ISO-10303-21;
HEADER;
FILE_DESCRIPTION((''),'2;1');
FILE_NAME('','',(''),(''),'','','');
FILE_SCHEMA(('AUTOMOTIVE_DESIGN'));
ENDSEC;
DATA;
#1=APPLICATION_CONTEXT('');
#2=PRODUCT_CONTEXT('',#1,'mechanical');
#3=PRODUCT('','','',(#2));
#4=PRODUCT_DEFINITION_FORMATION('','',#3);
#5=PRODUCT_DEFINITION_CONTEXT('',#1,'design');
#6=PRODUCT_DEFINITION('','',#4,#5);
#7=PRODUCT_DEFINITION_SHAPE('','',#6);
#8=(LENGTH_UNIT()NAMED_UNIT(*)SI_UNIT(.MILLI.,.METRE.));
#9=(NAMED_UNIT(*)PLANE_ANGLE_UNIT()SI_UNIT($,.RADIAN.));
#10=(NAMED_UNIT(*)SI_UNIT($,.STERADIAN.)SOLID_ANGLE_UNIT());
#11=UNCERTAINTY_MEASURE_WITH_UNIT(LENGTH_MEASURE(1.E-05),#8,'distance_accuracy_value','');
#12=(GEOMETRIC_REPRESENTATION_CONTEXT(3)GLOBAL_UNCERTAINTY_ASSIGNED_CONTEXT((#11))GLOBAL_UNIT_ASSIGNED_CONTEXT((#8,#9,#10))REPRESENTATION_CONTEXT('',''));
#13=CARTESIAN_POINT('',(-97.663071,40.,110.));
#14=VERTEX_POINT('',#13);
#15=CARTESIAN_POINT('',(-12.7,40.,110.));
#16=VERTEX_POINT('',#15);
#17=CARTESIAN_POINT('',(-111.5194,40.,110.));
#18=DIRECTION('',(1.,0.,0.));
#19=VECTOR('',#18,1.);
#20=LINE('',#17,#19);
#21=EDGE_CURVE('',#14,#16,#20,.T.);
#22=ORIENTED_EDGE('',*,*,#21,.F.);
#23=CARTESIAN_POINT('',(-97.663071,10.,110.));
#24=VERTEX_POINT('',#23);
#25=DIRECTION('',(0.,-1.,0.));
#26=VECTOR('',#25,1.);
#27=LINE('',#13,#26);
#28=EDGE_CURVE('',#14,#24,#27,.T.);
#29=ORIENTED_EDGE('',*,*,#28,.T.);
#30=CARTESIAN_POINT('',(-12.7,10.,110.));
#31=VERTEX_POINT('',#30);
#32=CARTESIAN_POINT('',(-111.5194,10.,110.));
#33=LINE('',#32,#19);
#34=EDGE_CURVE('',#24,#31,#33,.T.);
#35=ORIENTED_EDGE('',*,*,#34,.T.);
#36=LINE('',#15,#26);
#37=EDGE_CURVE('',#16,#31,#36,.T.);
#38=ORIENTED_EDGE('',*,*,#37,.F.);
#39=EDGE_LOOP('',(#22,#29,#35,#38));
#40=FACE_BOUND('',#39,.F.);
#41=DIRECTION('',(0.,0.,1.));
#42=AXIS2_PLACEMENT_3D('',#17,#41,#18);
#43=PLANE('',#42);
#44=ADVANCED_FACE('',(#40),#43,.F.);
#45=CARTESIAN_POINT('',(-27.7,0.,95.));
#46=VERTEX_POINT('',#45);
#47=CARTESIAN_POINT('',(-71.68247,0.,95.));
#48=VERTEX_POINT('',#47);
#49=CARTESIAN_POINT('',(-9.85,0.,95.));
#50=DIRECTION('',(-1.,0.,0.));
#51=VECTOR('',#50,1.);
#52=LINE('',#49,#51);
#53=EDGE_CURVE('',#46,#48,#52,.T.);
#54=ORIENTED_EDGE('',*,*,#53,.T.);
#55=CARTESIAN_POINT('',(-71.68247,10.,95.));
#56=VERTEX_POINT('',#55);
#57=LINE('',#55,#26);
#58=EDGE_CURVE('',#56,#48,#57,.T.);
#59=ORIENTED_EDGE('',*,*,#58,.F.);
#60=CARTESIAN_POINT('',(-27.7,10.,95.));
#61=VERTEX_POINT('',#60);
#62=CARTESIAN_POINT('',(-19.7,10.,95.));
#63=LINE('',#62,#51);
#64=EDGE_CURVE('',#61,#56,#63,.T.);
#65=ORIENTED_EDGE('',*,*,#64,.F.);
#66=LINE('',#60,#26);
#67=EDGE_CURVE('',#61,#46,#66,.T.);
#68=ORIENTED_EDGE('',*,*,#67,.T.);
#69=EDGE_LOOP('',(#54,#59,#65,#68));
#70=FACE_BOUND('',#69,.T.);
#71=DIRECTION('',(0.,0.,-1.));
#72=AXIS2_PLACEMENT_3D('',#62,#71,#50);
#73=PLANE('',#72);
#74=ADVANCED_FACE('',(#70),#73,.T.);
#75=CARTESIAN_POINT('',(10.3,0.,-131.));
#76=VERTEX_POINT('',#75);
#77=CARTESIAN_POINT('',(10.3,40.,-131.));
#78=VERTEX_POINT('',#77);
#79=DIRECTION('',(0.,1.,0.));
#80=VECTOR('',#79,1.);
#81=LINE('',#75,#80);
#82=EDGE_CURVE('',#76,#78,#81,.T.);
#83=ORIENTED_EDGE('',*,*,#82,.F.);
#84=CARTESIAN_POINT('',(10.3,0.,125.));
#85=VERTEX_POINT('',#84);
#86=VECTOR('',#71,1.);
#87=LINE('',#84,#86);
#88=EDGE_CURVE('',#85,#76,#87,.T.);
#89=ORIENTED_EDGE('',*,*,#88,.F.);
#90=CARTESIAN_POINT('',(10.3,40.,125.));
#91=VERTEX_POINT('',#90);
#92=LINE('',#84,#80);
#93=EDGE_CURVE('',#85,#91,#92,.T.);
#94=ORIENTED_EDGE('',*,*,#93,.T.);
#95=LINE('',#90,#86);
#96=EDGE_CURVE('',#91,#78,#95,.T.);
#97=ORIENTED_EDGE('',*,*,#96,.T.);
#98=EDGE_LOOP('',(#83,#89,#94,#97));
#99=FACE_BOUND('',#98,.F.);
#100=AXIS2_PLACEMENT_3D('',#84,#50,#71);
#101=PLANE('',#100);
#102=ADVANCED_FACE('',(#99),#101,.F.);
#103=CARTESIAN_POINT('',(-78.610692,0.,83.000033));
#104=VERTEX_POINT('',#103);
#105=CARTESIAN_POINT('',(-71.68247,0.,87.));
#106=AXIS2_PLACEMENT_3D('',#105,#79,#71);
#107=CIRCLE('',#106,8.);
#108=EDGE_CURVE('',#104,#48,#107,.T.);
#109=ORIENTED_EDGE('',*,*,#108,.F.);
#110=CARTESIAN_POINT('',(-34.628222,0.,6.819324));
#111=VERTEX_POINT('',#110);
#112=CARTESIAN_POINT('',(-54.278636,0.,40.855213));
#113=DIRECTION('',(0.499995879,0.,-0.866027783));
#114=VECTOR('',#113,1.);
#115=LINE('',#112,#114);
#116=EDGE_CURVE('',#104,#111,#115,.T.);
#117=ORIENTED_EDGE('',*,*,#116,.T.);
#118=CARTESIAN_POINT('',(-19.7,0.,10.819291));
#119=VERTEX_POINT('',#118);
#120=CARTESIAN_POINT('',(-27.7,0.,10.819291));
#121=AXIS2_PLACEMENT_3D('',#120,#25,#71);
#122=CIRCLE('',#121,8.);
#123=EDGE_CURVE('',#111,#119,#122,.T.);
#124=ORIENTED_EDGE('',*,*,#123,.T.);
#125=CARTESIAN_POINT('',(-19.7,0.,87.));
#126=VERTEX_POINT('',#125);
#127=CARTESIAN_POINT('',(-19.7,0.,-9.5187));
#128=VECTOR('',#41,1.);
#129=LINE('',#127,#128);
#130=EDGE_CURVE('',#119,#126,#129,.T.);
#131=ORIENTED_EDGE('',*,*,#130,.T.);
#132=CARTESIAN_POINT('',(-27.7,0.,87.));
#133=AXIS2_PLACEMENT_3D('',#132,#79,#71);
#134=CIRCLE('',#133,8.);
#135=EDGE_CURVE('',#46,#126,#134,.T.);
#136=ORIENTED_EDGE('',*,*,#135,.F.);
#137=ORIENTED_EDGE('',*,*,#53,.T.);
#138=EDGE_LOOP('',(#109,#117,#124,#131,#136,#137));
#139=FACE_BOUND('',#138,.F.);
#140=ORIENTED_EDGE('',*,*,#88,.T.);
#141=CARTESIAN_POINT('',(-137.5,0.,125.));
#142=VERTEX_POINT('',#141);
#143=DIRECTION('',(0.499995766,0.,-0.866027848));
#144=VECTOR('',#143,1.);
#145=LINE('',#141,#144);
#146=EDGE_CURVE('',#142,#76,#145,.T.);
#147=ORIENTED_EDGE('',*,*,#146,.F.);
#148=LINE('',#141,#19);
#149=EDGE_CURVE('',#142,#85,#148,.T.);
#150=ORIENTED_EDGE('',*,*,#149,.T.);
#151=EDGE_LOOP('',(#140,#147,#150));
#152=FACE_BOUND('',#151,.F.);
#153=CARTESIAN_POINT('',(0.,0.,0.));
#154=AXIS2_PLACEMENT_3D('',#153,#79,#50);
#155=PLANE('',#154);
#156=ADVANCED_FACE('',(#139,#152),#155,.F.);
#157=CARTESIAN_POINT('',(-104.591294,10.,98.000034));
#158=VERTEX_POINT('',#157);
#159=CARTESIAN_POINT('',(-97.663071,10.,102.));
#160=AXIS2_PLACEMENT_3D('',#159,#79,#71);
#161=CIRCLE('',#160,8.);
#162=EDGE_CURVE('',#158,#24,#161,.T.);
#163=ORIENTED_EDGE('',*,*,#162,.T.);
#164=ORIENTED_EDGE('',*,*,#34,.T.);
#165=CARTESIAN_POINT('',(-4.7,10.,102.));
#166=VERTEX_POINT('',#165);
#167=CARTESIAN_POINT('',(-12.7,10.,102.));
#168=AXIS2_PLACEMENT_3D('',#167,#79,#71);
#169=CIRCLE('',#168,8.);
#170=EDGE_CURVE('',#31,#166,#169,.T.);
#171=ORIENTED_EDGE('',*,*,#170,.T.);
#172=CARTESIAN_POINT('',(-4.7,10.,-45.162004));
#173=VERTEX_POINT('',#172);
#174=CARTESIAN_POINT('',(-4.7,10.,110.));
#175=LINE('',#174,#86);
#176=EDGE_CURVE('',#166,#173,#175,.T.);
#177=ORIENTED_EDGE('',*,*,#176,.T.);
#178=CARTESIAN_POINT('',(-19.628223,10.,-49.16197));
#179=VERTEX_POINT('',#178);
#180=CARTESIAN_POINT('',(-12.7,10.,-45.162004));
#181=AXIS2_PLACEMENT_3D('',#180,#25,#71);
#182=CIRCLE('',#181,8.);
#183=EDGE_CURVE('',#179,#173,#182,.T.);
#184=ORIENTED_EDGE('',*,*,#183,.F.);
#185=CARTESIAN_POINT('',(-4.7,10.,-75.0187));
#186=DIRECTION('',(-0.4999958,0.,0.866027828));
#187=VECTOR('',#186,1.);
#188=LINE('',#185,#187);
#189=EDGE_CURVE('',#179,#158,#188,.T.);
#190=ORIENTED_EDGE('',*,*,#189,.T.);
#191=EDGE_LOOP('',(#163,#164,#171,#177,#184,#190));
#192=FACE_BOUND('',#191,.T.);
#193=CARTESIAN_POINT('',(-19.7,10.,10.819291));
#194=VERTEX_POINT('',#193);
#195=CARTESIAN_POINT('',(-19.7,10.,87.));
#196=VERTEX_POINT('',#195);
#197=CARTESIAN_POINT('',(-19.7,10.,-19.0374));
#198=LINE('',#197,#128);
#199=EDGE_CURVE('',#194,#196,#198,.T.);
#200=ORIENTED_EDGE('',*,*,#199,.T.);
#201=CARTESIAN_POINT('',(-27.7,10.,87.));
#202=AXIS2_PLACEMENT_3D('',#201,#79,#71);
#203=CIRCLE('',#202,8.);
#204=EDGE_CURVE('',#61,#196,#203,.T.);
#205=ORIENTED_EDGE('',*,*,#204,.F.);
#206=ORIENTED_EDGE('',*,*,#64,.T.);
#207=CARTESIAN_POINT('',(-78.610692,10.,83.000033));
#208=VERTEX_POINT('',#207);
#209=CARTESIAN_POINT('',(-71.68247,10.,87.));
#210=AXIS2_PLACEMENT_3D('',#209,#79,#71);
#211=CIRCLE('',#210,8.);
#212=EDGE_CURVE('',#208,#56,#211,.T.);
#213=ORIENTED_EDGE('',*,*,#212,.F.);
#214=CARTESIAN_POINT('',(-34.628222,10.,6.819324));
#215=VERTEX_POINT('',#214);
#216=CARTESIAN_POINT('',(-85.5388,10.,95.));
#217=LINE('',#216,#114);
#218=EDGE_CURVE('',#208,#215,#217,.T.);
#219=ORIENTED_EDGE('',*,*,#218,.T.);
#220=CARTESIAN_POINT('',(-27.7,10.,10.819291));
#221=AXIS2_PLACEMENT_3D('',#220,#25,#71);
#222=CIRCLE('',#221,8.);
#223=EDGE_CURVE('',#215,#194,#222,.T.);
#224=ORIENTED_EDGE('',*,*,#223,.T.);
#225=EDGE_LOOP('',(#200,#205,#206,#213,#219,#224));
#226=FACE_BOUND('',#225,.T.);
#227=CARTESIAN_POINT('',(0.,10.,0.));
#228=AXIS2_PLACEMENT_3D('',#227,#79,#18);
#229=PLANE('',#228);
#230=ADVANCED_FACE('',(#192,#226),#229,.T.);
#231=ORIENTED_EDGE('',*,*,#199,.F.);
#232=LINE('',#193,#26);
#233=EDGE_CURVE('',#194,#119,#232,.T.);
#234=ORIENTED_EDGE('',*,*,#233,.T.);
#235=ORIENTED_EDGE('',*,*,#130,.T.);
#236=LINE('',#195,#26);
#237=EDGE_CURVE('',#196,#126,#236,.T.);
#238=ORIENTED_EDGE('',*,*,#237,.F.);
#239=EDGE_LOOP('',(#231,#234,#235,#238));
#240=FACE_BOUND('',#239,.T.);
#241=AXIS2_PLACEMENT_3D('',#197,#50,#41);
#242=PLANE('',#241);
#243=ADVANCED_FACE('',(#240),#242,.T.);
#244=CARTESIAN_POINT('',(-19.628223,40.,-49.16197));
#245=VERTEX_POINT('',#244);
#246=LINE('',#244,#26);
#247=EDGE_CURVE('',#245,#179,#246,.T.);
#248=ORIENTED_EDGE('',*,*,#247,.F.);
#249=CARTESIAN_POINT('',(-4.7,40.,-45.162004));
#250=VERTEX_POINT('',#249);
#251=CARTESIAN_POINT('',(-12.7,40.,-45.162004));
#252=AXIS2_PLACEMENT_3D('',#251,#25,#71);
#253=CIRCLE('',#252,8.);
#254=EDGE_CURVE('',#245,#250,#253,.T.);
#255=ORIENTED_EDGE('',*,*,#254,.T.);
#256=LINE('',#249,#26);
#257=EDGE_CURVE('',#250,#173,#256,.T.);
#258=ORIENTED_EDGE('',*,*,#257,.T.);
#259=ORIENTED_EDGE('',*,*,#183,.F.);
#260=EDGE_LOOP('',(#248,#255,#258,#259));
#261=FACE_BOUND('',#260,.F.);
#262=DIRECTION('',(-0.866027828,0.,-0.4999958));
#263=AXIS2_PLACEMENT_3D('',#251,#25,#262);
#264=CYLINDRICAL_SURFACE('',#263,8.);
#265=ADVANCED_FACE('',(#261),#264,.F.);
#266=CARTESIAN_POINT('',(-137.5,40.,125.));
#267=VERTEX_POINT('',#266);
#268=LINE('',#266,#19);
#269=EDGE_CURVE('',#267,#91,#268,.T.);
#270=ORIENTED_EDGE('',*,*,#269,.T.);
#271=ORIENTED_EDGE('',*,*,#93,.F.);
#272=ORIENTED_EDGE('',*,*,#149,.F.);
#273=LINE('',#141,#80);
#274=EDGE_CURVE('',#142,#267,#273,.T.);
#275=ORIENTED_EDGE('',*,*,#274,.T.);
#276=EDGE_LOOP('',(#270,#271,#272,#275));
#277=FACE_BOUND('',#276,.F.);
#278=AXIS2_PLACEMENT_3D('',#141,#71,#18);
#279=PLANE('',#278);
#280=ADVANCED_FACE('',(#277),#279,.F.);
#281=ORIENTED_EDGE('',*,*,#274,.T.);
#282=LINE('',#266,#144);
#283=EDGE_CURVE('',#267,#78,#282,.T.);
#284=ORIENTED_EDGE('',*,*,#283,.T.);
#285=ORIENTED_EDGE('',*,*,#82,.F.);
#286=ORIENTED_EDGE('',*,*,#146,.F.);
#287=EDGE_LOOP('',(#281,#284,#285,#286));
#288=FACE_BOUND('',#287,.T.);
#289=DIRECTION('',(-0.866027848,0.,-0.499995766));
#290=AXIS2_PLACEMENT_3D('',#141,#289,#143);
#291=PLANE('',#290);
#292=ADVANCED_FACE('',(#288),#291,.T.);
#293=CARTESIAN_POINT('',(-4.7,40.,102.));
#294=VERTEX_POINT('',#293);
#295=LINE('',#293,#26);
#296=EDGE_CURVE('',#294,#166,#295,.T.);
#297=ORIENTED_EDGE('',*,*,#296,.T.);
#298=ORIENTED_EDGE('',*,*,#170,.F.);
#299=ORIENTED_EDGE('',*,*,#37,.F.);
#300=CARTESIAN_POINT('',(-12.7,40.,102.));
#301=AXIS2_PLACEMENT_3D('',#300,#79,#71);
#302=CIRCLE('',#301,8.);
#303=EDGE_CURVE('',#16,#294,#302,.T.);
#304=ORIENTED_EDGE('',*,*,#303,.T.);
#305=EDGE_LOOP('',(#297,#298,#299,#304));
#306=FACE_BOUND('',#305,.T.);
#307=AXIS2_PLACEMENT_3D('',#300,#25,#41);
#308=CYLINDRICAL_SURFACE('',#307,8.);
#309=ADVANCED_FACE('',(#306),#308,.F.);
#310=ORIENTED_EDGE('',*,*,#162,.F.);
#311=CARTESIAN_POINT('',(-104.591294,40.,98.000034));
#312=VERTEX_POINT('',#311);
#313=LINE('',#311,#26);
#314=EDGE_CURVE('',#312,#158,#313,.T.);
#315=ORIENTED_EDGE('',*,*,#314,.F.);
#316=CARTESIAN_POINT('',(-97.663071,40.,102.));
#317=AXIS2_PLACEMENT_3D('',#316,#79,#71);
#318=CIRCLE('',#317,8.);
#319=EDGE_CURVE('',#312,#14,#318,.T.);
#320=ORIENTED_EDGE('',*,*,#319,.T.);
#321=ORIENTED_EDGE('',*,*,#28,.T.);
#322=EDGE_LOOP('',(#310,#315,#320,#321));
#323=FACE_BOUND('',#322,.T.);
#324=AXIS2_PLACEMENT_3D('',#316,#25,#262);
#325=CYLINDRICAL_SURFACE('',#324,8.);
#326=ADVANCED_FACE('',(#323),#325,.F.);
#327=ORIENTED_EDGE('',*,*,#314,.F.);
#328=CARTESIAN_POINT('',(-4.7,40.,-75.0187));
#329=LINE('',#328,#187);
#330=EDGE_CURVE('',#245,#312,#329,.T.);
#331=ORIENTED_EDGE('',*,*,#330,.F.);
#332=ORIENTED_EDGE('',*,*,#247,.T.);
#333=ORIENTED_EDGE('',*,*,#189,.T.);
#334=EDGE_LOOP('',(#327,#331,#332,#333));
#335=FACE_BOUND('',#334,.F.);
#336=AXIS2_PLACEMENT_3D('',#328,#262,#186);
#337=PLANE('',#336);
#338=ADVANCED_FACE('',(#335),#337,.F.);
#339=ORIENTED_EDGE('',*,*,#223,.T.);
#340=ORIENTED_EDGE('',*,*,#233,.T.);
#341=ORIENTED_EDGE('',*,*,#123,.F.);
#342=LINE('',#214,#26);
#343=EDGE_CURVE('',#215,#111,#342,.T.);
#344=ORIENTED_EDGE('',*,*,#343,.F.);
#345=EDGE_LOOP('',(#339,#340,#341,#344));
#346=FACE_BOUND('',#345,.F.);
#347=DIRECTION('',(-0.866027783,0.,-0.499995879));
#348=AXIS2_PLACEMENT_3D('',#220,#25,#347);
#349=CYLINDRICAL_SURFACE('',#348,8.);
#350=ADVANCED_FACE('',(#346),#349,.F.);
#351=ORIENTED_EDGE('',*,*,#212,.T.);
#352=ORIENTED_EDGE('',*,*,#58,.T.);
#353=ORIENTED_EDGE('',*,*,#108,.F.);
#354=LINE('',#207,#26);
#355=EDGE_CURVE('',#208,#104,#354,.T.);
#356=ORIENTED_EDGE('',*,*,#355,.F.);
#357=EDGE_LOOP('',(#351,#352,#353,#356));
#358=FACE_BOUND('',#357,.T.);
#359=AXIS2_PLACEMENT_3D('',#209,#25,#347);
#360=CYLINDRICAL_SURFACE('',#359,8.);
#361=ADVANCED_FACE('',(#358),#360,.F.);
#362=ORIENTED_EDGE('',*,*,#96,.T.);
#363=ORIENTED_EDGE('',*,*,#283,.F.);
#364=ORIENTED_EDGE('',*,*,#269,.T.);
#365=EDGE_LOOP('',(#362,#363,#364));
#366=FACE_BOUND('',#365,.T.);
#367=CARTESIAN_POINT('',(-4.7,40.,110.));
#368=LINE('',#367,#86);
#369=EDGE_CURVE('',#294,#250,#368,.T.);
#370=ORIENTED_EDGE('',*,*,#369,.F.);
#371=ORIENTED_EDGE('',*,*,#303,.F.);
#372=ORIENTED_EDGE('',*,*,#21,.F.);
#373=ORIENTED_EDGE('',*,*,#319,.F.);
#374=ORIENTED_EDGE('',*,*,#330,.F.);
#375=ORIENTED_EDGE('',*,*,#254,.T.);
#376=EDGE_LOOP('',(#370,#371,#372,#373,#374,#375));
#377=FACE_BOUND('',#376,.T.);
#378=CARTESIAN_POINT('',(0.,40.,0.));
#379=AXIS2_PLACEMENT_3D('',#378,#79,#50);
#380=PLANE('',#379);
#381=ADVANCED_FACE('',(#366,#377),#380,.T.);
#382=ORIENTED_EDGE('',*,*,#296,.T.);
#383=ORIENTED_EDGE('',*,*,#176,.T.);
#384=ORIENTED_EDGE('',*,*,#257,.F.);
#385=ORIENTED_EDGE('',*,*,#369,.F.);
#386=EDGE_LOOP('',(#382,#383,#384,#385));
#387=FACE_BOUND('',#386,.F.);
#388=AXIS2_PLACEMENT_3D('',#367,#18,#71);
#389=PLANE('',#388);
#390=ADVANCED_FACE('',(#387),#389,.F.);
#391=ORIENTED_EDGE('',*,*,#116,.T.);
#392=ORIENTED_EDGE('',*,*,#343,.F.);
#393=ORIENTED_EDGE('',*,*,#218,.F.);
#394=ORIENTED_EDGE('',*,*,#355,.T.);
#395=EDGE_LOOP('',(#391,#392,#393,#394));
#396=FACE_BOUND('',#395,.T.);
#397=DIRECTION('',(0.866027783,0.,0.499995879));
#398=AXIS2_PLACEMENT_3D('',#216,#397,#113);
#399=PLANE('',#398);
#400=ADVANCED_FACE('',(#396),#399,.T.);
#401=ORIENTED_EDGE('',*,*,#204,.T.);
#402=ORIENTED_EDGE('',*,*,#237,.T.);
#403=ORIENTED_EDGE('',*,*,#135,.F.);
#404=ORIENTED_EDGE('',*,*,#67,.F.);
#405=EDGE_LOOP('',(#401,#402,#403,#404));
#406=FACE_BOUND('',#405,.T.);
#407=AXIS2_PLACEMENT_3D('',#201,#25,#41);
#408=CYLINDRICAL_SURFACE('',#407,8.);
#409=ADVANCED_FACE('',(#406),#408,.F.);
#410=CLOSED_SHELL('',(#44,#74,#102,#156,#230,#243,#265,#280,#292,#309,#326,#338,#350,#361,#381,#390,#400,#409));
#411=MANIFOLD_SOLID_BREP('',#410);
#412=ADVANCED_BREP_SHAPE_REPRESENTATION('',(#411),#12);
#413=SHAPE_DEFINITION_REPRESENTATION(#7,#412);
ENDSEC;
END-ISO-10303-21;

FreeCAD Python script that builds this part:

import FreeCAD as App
import Part
import Sketcher
Q = App.Units.Quantity


def edges_at(feature, points):
    """Names of the edges that pass closest to the given points."""
    edges = feature.Shape.Edges
    near = lambda p: min(range(len(edges)), key=lambda i: edges[i].distToShape(Part.Vertex(*p))[0])
    return sorted({f"Edge{near(p) + 1}" for p in points})

doc = App.newDocument("Part")
params = doc.addObject("Spreadsheet::Sheet", "Params")
for row, (alias, value) in enumerate([
    ("sketch1_height", "256 mm"),
    ("sketch1_width", "147.8 mm"),
    ("pad1_length", "40 mm"),
    ("pocket1_length", "30 mm"),
    ("pocket2_length", "30 mm"),
    ("fillet_radius", "8 mm"),
], start=1):
    params.set(f"A{row}", alias)
    params.set(f"B{row}", "=" + value)
    params.setAlias(f"B{row}", alias)

body = doc.addObject("PartDesign::Body", "Body")

# Sketch on XZ plane
sketch1 = body.newObject("Sketcher::SketchObject", "Sketch")
sketch1.AttachmentSupport = (doc.getObject("XZ_Plane"), [""])
sketch1.MapMode = "FlatFace"
sketch1.addGeometry([
    Part.LineSegment(App.Vector(10, -131, 0), App.Vector(-138, 125, 0)),
    Part.LineSegment(App.Vector(-138, 125, 0), App.Vector(10, 125, 0)),
    Part.LineSegment(App.Vector(10, 125, 0), App.Vector(10, -131, 0)),
], False)
sketch1.addConstraint([
    Sketcher.Constraint("Coincident", 0, 2, 1, 1),
    Sketcher.Constraint("Coincident", 1, 2, 2, 1),
    Sketcher.Constraint("Coincident", 2, 2, 0, 1),
    Sketcher.Constraint("Horizontal", 1),
    Sketcher.Constraint("Vertical", 2),
    Sketcher.Constraint("DistanceY", 2, 2, 2, 1, 256.0),
    Sketcher.Constraint("DistanceX", 1, 1, 1, 2, 147.8),
    Sketcher.Constraint("DistanceY", -1, 1, 0, 2, 125.0),
    Sketcher.Constraint("DistanceX", 0, 2, -1, 1, 137.5),
])
sketch1.setExpression("Constraints[5]", "Params.sketch1_height")
sketch1.setExpression("Constraints[6]", "Params.sketch1_width")
pad1 = body.newObject("PartDesign::Pad", "Pad")
pad1.Profile = sketch1
pad1.setExpression("Length", "Params.pad1_length")
pad1.Reversed = True

# Sketch on XZ plane
sketch2 = body.newObject("Sketcher::SketchObject", "Sketch001")
sketch2.AttachmentSupport = (doc.getObject("XZ_Plane"), [""])
sketch2.MapMode = "FlatFace"
sketch2.AttachmentOffset = App.Placement(App.Vector(0, 0, -40), App.Rotation())
sketch2.addGeometry([
    Part.LineSegment(App.Vector(-5, -75, 0), App.Vector(-112, 110, 0)),
    Part.LineSegment(App.Vector(-112, 110, 0), App.Vector(-5, 110, 0)),
    Part.LineSegment(App.Vector(-5, 110, 0), App.Vector(-5, -75, 0)),
], False)
sketch2.addConstraint([
    Sketcher.Constraint("Coincident", 0, 2, 1, 1),
    Sketcher.Constraint("Coincident", 1, 2, 2, 1),
    Sketcher.Constraint("Coincident", 2, 2, 0, 1),
    Sketcher.Constraint("Horizontal", 1),
    Sketcher.Constraint("Vertical", 2),
    Sketcher.Constraint("Angle", 0, Q("119.9997 deg")),
    Sketcher.Constraint("DistanceY", -1, 1, 0, 2, 110.0),
    Sketcher.Constraint("DistanceX", 1, 2, -1, 1, 4.7),
    Sketcher.Constraint("DistanceX", 1, 1, 1, 2, 106.8194),
])
pocket1 = body.newObject("PartDesign::Pocket", "Pocket")
pocket1.Profile = sketch2
pocket1.setExpression("Length", "Params.pocket1_length")
pocket1.Reversed = True

# Sketch on XZ plane
sketch3 = body.newObject("Sketcher::SketchObject", "Sketch002")
sketch3.AttachmentSupport = (doc.getObject("XZ_Plane"), [""])
sketch3.MapMode = "FlatFace"
sketch3.AttachmentOffset = App.Placement(App.Vector(0, 0, -10), App.Rotation())
sketch3.addGeometry([
    Part.LineSegment(App.Vector(-20, 95, 0), App.Vector(-20, -19, 0)),
    Part.LineSegment(App.Vector(-20, -19, 0), App.Vector(-86, 95, 0)),
    Part.LineSegment(App.Vector(-86, 95, 0), App.Vector(-20, 95, 0)),
], False)
sketch3.addConstraint([
    Sketcher.Constraint("Coincident", 0, 2, 1, 1),
    Sketcher.Constraint("Coincident", 1, 2, 2, 1),
    Sketcher.Constraint("Coincident", 2, 2, 0, 1),
    Sketcher.Constraint("Vertical", 0),
    Sketcher.Constraint("Horizontal", 2),
    Sketcher.Constraint("Angle", 1, Q("119.9997 deg")),
    Sketcher.Constraint("DistanceY", -1, 1, 1, 2, 95.0),
    Sketcher.Constraint("DistanceX", 0, 2, -1, 1, 19.7),
    Sketcher.Constraint("DistanceX", 2, 1, 2, 2, 65.8388),
])
pocket2 = body.newObject("PartDesign::Pocket", "Pocket001")
pocket2.Profile = sketch3
pocket2.setExpression("Length", "Params.pocket2_length")
pocket2.Reversed = True
doc.recompute()

fillet = body.newObject("PartDesign::Fillet", "Fillet")
fillet.Base = (pocket2, edges_at(pocket2, [
    (-4.7, 25, -75.019),
    (-111.519, 25, 110),
    (-4.7, 25, 110),
    (-19.7, 5, 95),
    (-85.539, 5, 95),
    (-19.7, 5, -19.037),
]))
fillet.setExpression("Radius", "Params.fillet_radius")

doc.recompute()
